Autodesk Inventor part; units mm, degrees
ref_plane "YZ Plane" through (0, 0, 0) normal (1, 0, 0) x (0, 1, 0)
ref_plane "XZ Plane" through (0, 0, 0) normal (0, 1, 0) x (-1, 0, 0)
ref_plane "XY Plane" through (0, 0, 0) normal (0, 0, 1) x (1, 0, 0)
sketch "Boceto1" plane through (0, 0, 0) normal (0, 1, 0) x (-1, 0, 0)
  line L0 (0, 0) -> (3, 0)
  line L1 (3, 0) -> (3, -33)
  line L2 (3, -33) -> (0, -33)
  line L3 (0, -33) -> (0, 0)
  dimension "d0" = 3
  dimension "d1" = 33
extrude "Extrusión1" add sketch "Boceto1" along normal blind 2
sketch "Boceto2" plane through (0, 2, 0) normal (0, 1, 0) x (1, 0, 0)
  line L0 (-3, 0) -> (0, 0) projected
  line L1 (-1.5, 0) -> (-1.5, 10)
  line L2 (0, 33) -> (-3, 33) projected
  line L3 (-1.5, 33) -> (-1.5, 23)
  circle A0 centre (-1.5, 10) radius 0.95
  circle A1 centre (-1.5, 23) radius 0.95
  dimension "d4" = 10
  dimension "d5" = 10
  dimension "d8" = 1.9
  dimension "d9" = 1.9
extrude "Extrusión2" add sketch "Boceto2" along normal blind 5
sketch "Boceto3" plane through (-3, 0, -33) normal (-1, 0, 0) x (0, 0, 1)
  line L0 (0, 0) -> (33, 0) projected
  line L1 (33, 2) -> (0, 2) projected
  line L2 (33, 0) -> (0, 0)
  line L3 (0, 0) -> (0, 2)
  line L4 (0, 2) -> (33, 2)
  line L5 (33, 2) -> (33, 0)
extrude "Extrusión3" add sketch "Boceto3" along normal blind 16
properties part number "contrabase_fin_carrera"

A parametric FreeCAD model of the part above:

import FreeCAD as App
import Part
import Sketcher
Q = App.Units.Quantity

doc = App.newDocument("Part")
body = doc.addObject("PartDesign::Body", "Body")

sketch1 = body.newObject("Sketcher::SketchObject", "Sketch")
sketch1.AttachmentSupport = (doc.getObject("XZ_Plane"), [""])
sketch1.MapMode = "FlatFace"
sketch1.addGeometry([
    Part.LineSegment(App.Vector(-3, 0, 0), App.Vector(0, 0, 0)),
    Part.LineSegment(App.Vector(0, 0, 0), App.Vector(0, -33, 0)),
    Part.LineSegment(App.Vector(0, -33, 0), App.Vector(-3, -33, 0)),
    Part.LineSegment(App.Vector(-3, -33, 0), App.Vector(-3, 0, 0)),
], False)
sketch1.addConstraint([
    Sketcher.Constraint("Coincident", 0, 2, 1, 1),
    Sketcher.Constraint("Coincident", 1, 2, 2, 1),
    Sketcher.Constraint("Coincident", 2, 2, 3, 1),
    Sketcher.Constraint("Coincident", 3, 2, 0, 1),
    Sketcher.Constraint("Horizontal", 0),
    Sketcher.Constraint("Vertical", 1),
    Sketcher.Constraint("Horizontal", 2),
    Sketcher.Constraint("Vertical", 3),
    Sketcher.Constraint("Coincident", 0, 2, -1, 1),
    Sketcher.Constraint("DistanceX", 0, 1, 0, 2, Q("3 mm")),
    Sketcher.Constraint("DistanceY", 1, 2, 1, 1, Q("33 mm")),
])
pad1 = body.newObject("PartDesign::Pad", "Pad")
pad1.Profile = sketch1
pad1.Length = 2
pad1.Reversed = True

sketch2 = body.newObject("Sketcher::SketchObject", "Sketch001")
sketch2.AttachmentSupport = (doc.getObject("XZ_Plane"), [""])
sketch2.MapMode = "FlatFace"
sketch2.AttachmentOffset = App.Placement(App.Vector(0, 0, -2), App.Rotation())
sketch2.addGeometry([
    Part.Circle(App.Vector(-1.5, -10, 0), App.Vector(0, 0, 1), 0.95),
    Part.Circle(App.Vector(-1.5, -23, 0), App.Vector(0, 0, 1), 0.95),
], False)
sketch2.addConstraint([
    Sketcher.Constraint("Equal", 0, 1),
    Sketcher.Constraint("Vertical", 0, 3, 1, 3),
    Sketcher.Constraint("Diameter", 0, Q("1.9 mm")),
    Sketcher.Constraint("DistanceY", 0, 3, -1, 1, Q("10 mm")),
    Sketcher.Constraint("DistanceY", 1, 3, -1, 1, Q("23 mm")),
    Sketcher.Constraint("DistanceX", 0, 3, -1, 1, Q("1.5 mm")),
])
pad2 = body.newObject("PartDesign::Pad", "Pad001")
pad2.Profile = sketch2
pad2.Length = 5
pad2.Reversed = True

sketch3 = body.newObject("Sketcher::SketchObject", "Sketch002")
sketch3.AttachmentSupport = (doc.getObject("YZ_Plane"), [""])
sketch3.MapMode = "FlatFace"
sketch3.AttachmentOffset = App.Placement(App.Vector(0, 0, -3), App.Rotation())
sketch3.addGeometry([
    Part.LineSegment(App.Vector(2, -33, 0), App.Vector(0, -33, 0)),
    Part.LineSegment(App.Vector(0, -33, 0), App.Vector(0, 0, 0)),
    Part.LineSegment(App.Vector(0, 0, 0), App.Vector(2, 0, 0)),
    Part.LineSegment(App.Vector(2, 0, 0), App.Vector(2, -33, 0)),
], False)
sketch3.addConstraint([
    Sketcher.Constraint("Coincident", 0, 2, 1, 1),
    Sketcher.Constraint("Coincident", 1, 2, 2, 1),
    Sketcher.Constraint("Coincident", 2, 2, 3, 1),
    Sketcher.Constraint("Coincident", 3, 2, 0, 1),
    Sketcher.Constraint("Horizontal", 0),
    Sketcher.Constraint("Vertical", 1),
    Sketcher.Constraint("Horizontal", 2),
    Sketcher.Constraint("Vertical", 3),
    Sketcher.Constraint("Coincident", 1, 2, -1, 1),
    Sketcher.Constraint("DistanceX", 0, 2, 0, 1, Q("2 mm")),
    Sketcher.Constraint("DistanceY", 1, 1, 1, 2, Q("33 mm")),
])
pad3 = body.newObject("PartDesign::Pad", "Pad002")
pad3.Profile = sketch3
pad3.Length = 16
pad3.Reversed = True

doc.recompute()
